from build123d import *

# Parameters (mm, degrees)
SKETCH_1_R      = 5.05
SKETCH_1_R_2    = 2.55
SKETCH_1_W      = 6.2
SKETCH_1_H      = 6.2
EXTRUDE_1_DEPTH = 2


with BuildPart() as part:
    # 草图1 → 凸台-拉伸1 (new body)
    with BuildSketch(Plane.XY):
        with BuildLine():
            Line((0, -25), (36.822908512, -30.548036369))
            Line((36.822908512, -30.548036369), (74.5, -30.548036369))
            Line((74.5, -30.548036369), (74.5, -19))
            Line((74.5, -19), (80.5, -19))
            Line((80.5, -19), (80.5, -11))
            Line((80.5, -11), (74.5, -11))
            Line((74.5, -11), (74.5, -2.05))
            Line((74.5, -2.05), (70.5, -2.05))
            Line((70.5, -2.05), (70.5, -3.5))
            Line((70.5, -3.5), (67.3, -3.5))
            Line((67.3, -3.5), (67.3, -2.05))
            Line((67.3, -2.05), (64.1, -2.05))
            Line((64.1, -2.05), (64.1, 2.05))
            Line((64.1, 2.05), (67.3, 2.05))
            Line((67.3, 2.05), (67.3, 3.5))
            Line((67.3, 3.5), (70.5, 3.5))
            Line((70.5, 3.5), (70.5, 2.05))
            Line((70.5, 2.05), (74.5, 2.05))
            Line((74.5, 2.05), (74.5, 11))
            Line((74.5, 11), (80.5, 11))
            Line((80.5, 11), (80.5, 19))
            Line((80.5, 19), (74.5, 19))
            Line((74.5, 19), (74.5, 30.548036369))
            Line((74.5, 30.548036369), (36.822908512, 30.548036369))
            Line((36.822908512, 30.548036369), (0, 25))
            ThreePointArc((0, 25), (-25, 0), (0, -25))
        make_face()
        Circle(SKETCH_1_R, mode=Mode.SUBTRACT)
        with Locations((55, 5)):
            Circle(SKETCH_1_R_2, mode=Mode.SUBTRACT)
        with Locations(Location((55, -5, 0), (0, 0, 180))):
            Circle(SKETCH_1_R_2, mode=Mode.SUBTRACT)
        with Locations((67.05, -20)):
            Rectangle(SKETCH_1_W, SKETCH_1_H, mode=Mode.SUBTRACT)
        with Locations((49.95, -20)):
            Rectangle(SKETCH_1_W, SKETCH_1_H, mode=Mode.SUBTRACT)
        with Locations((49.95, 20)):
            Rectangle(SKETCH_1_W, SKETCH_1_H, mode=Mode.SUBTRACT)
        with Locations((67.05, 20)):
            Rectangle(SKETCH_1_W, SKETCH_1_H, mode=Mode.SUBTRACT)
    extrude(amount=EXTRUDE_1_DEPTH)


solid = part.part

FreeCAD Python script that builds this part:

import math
import FreeCAD as App
import Part
import Sketcher

V = App.Vector
Q = App.Units.Quantity

doc = App.newDocument("Part")
body = doc.addObject("PartDesign::Body", "Body")

# Sketch on XY plane
sketch1 = doc.addObject("Sketcher::SketchObject", "Sketch")
body.addObject(sketch1)
sketch1.AttachmentSupport = (doc.XY_Plane, [""])
sketch1.MapMode = "FlatFace"
sketch1.addGeometry([
    Part.LineSegment(V(0, -25, 0), V(36.822909, -30.548036, 0)),  # 0
    Part.LineSegment(V(36.822909, -30.548036, 0), V(74.5, -30.548036, 0)),  # 1
    Part.LineSegment(V(74.5, -30.548036, 0), V(74.5, -19, 0)),  # 2
    Part.LineSegment(V(74.5, -19, 0), V(80.5, -19, 0)),  # 3
    Part.LineSegment(V(80.5, -19, 0), V(80.5, -11, 0)),  # 4
    Part.LineSegment(V(80.5, -11, 0), V(74.5, -11, 0)),  # 5
    Part.LineSegment(V(74.5, -11, 0), V(74.5, -2.05, 0)),  # 6
    Part.LineSegment(V(74.5, -2.05, 0), V(70.5, -2.05, 0)),  # 7
    Part.LineSegment(V(70.5, -2.05, 0), V(70.5, -3.5, 0)),  # 8
    Part.LineSegment(V(70.5, -3.5, 0), V(67.3, -3.5, 0)),  # 9
    Part.LineSegment(V(67.3, -3.5, 0), V(67.3, -2.05, 0)),  # 10
    Part.LineSegment(V(67.3, -2.05, 0), V(64.1, -2.05, 0)),  # 11
    Part.LineSegment(V(64.1, -2.05, 0), V(64.1, 2.05, 0)),  # 12
    Part.LineSegment(V(64.1, 2.05, 0), V(67.3, 2.05, 0)),  # 13
    Part.LineSegment(V(67.3, 2.05, 0), V(67.3, 3.5, 0)),  # 14
    Part.LineSegment(V(67.3, 3.5, 0), V(70.5, 3.5, 0)),  # 15
    Part.LineSegment(V(70.5, 3.5, 0), V(70.5, 2.05, 0)),  # 16
    Part.LineSegment(V(70.5, 2.05, 0), V(74.5, 2.05, 0)),  # 17
    Part.LineSegment(V(74.5, 2.05, 0), V(74.5, 11, 0)),  # 18
    Part.LineSegment(V(74.5, 11, 0), V(80.5, 11, 0)),  # 19
    Part.LineSegment(V(80.5, 11, 0), V(80.5, 19, 0)),  # 20
    Part.LineSegment(V(80.5, 19, 0), V(74.5, 19, 0)),  # 21
    Part.LineSegment(V(74.5, 19, 0), V(74.5, 30.548036, 0)),  # 22
    Part.LineSegment(V(74.5, 30.548036, 0), V(36.822909, 30.548036, 0)),  # 23
    Part.LineSegment(V(36.822909, 30.548036, 0), V(0, 25, 0)),  # 24
    Part.ArcOfCircle(Part.Circle(V(0, 0, 0), V(0, 0, 1), 25), math.radians(90), math.radians(270)),  # 25
    Part.LineSegment(V(53.05, -23.1, 0), V(46.85, -23.1, 0)),  # 26
    Part.LineSegment(V(46.85, -23.1, 0), V(46.85, -16.9, 0)),  # 27
    Part.LineSegment(V(46.85, -16.9, 0), V(53.05, -16.9, 0)),  # 28
    Part.LineSegment(V(53.05, -16.9, 0), V(53.05, -23.1, 0)),  # 29
    Part.LineSegment(V(70.15, -23.1, 0), V(63.95, -23.1, 0)),  # 30
    Part.LineSegment(V(63.95, -23.1, 0), V(63.95, -16.9, 0)),  # 31
    Part.LineSegment(V(63.95, -16.9, 0), V(70.15, -16.9, 0)),  # 32
    Part.LineSegment(V(70.15, -16.9, 0), V(70.15, -23.1, 0)),  # 33
    Part.Circle(V(55, -5, 0), V(0, 0, 1), 2.55),  # 34
    Part.Circle(V(0, 0, 0), V(0, 0, 1), 5.05),  # 35
    Part.Circle(V(55, 5, 0), V(0, 0, 1), 2.55),  # 36
    Part.LineSegment(V(53.05, 16.9, 0), V(46.85, 16.9, 0)),  # 37
    Part.LineSegment(V(46.85, 16.9, 0), V(46.85, 23.1, 0)),  # 38
    Part.LineSegment(V(46.85, 23.1, 0), V(53.05, 23.1, 0)),  # 39
    Part.LineSegment(V(53.05, 23.1, 0), V(53.05, 16.9, 0)),  # 40
    Part.LineSegment(V(70.15, 16.9, 0), V(63.95, 16.9, 0)),  # 41
    Part.LineSegment(V(63.95, 16.9, 0), V(63.95, 23.1, 0)),  # 42
    Part.LineSegment(V(63.95, 23.1, 0), V(70.15, 23.1, 0)),  # 43
    Part.LineSegment(V(70.15, 23.1, 0), V(70.15, 16.9, 0)),  # 44
], False)
sketch1.addConstraint([
    Sketcher.Constraint("Coincident", 0, 2, 1, 1),
    Sketcher.Constraint("Coincident", 1, 2, 2, 1),
    Sketcher.Constraint("Coincident", 2, 2, 3, 1),
    Sketcher.Constraint("Coincident", 3, 2, 4, 1),
    Sketcher.Constraint("Coincident", 4, 2, 5, 1),
    Sketcher.Constraint("Coincident", 5, 2, 6, 1),
    Sketcher.Constraint("Coincident", 6, 2, 7, 1),
    Sketcher.Constraint("Coincident", 7, 2, 8, 1),
    Sketcher.Constraint("Coincident", 8, 2, 9, 1),
    Sketcher.Constraint("Coincident", 9, 2, 10, 1),
    Sketcher.Constraint("Coincident", 10, 2, 11, 1),
    Sketcher.Constraint("Coincident", 11, 2, 12, 1),
    Sketcher.Constraint("Coincident", 12, 2, 13, 1),
    Sketcher.Constraint("Coincident", 13, 2, 14, 1),
    Sketcher.Constraint("Coincident", 14, 2, 15, 1),
    Sketcher.Constraint("Coincident", 15, 2, 16, 1),
    Sketcher.Constraint("Coincident", 16, 2, 17, 1),
    Sketcher.Constraint("Coincident", 17, 2, 18, 1),
    Sketcher.Constraint("Coincident", 18, 2, 19, 1),
    Sketcher.Constraint("Coincident", 19, 2, 20, 1),
    Sketcher.Constraint("Coincident", 20, 2, 21, 1),
    Sketcher.Constraint("Coincident", 21, 2, 22, 1),
    Sketcher.Constraint("Coincident", 22, 2, 23, 1),
    Sketcher.Constraint("Coincident", 23, 2, 24, 1),
    Sketcher.Constraint("Coincident", 24, 2, 25, 1),
    Sketcher.Constraint("Coincident", 25, 2, 0, 1),
    Sketcher.Constraint("Coincident", 26, 2, 27, 1),
    Sketcher.Constraint("Coincident", 27, 2, 28, 1),
    Sketcher.Constraint("Coincident", 28, 2, 29, 1),
    Sketcher.Constraint("Coincident", 29, 2, 26, 1),
    Sketcher.Constraint("Coincident", 30, 2, 31, 1),
    Sketcher.Constraint("Coincident", 31, 2, 32, 1),
    Sketcher.Constraint("Coincident", 32, 2, 33, 1),
    Sketcher.Constraint("Coincident", 33, 2, 30, 1),
    Sketcher.Constraint("Coincident", 37, 2, 38, 1),
    Sketcher.Constraint("Coincident", 38, 2, 39, 1),
    Sketcher.Constraint("Coincident", 39, 2, 40, 1),
    Sketcher.Constraint("Coincident", 40, 2, 37, 1),
    Sketcher.Constraint("Coincident", 41, 2, 42, 1),
    Sketcher.Constraint("Coincident", 42, 2, 43, 1),
    Sketcher.Constraint("Coincident", 43, 2, 44, 1),
    Sketcher.Constraint("Coincident", 44, 2, 41, 1),
    Sketcher.Constraint("Horizontal", 1),
    Sketcher.Constraint("Vertical", 2),
    Sketcher.Constraint("Horizontal", 3),
    Sketcher.Constraint("Vertical", 4),
    Sketcher.Constraint("Horizontal", 5),
    Sketcher.Constraint("Vertical", 6),
    Sketcher.Constraint("Horizontal", 7),
    Sketcher.Constraint("Vertical", 8),
    Sketcher.Constraint("Horizontal", 9),
    Sketcher.Constraint("Vertical", 10),
    Sketcher.Constraint("Horizontal", 11),
    Sketcher.Constraint("Vertical", 12),
    Sketcher.Constraint("Horizontal", 13),
    Sketcher.Constraint("Vertical", 14),
    Sketcher.Constraint("Horizontal", 15),
    Sketcher.Constraint("Vertical", 16),
    Sketcher.Constraint("Horizontal", 17),
    Sketcher.Constraint("Vertical", 18),
    Sketcher.Constraint("Horizontal", 19),
    Sketcher.Constraint("Vertical", 20),
    Sketcher.Constraint("Horizontal", 21),
    Sketcher.Constraint("Vertical", 22),
    Sketcher.Constraint("Horizontal", 23),
    Sketcher.Constraint("Horizontal", 26),
    Sketcher.Constraint("Vertical", 27),
    Sketcher.Constraint("Horizontal", 28),
    Sketcher.Constraint("Vertical", 29),
    Sketcher.Constraint("Horizontal", 30),
    Sketcher.Constraint("Vertical", 31),
    Sketcher.Constraint("Horizontal", 32),
    Sketcher.Constraint("Vertical", 33),
    Sketcher.Constraint("Horizontal", 37),
    Sketcher.Constraint("Vertical", 38),
    Sketcher.Constraint("Horizontal", 39),
    Sketcher.Constraint("Vertical", 40),
    Sketcher.Constraint("Horizontal", 41),
    Sketcher.Constraint("Vertical", 42),
    Sketcher.Constraint("Horizontal", 43),
    Sketcher.Constraint("Vertical", 44),
    Sketcher.Constraint("Coincident", 25, 3, -1, 1),
    Sketcher.Constraint("Coincident", 35, 3, -1, 1),
    Sketcher.Constraint("Equal", 34, 36),
    Sketcher.Constraint("Symmetric", 34, 3, 36, 3, -1),
    Sketcher.Constraint("Symmetric", 10, 2, 13, 2, -1),
    Sketcher.Constraint("Symmetric", 8, 2, 15, 2, -1),
    Sketcher.Constraint("Symmetric", 6, 2, 17, 2, -1),
    Sketcher.Constraint("Symmetric", 4, 2, 19, 2, -1),
    Sketcher.Constraint("Symmetric", 2, 2, 21, 2, -1),
    Sketcher.Constraint("Symmetric", 0, 2, 23, 2, -1),
    Sketcher.Constraint("Symmetric", 27, 2, 37, 2, -1),
    Sketcher.Constraint("Symmetric", 29, 2, 39, 2, -1),
    Sketcher.Constraint("Symmetric", 31, 2, 41, 2, -1),
    Sketcher.Constraint("Symmetric", 33, 2, 43, 2, -1),
    Sketcher.Constraint("PointOnObject", 24, 2, -2),
    Sketcher.Constraint("PointOnObject", 25, 2, -2),
    Sketcher.Constraint("Horizontal", 7, 2, 10, 2),
    Sketcher.Constraint("Horizontal", 29, 2, 30, 2),
    Sketcher.Constraint("Horizontal", 28, 2, 31, 2),
    Sketcher.Constraint("Vertical", 2, 2, 5, 2),
    Sketcher.Constraint("Equal", 9, 11),
    Sketcher.Constraint("Equal", 28, 30),
    Sketcher.Constraint("Equal", 43, 27),
    Sketcher.Constraint("Radius", 25, Q("25 mm")),
    Sketcher.Constraint("Diameter", 34, Q("5.1 mm")),
    Sketcher.Constraint("Diameter", 35, Q("10.1 mm")),
    Sketcher.Constraint("DistanceX", 3, 1, 3, 2, Q("6 mm")),
    Sketcher.Constraint("DistanceX", 7, 2, 7, 1, Q("4 mm")),
    Sketcher.Constraint("DistanceY", 4, 1, 4, 2, Q("8 mm")),
    Sketcher.Constraint("DistanceX", 9, 2, 9, 1, Q("3.2 mm")),
    Sketcher.Constraint("DistanceX", 26, 2, 26, 1, Q("6.2 mm")),
    Sketcher.Constraint("DistanceY", 12, 1, 12, 2, Q("4.1 mm")),
    Sketcher.Constraint("DistanceX", -1, 1, 34, 3, Q("55 mm")),
    Sketcher.Constraint("DistanceY", 34, 3, -1, 1, Q("5 mm")),
    Sketcher.Constraint("DistanceY", 2, 2, -1, 1, Q("19 mm")),
    Sketcher.Constraint("DistanceY", 8, 2, 8, 1, Q("1.45 mm")),
    Sketcher.Constraint("DistanceX", -1, 1, 1, 2, Q("74.5 mm")),
    Sketcher.Constraint("DistanceY", 26, 2, -1, 1, Q("23.1 mm")),
    Sketcher.Constraint("DistanceX", 29, 2, 30, 2, Q("10.9 mm")),
    Sketcher.Constraint("DistanceX", -1, 1, 26, 2, Q("46.85 mm")),
    Sketcher.Constraint("DistanceX", 1, 1, 1, 2, Q("37.677091 mm")),
    Sketcher.Constraint("Distance", 0, Q("37.238519 mm")),
])
pad1 = doc.addObject("PartDesign::Pad", "Pad")
body.addObject(pad1)
pad1.Profile = sketch1
pad1.Length = 2

doc.recompute()
